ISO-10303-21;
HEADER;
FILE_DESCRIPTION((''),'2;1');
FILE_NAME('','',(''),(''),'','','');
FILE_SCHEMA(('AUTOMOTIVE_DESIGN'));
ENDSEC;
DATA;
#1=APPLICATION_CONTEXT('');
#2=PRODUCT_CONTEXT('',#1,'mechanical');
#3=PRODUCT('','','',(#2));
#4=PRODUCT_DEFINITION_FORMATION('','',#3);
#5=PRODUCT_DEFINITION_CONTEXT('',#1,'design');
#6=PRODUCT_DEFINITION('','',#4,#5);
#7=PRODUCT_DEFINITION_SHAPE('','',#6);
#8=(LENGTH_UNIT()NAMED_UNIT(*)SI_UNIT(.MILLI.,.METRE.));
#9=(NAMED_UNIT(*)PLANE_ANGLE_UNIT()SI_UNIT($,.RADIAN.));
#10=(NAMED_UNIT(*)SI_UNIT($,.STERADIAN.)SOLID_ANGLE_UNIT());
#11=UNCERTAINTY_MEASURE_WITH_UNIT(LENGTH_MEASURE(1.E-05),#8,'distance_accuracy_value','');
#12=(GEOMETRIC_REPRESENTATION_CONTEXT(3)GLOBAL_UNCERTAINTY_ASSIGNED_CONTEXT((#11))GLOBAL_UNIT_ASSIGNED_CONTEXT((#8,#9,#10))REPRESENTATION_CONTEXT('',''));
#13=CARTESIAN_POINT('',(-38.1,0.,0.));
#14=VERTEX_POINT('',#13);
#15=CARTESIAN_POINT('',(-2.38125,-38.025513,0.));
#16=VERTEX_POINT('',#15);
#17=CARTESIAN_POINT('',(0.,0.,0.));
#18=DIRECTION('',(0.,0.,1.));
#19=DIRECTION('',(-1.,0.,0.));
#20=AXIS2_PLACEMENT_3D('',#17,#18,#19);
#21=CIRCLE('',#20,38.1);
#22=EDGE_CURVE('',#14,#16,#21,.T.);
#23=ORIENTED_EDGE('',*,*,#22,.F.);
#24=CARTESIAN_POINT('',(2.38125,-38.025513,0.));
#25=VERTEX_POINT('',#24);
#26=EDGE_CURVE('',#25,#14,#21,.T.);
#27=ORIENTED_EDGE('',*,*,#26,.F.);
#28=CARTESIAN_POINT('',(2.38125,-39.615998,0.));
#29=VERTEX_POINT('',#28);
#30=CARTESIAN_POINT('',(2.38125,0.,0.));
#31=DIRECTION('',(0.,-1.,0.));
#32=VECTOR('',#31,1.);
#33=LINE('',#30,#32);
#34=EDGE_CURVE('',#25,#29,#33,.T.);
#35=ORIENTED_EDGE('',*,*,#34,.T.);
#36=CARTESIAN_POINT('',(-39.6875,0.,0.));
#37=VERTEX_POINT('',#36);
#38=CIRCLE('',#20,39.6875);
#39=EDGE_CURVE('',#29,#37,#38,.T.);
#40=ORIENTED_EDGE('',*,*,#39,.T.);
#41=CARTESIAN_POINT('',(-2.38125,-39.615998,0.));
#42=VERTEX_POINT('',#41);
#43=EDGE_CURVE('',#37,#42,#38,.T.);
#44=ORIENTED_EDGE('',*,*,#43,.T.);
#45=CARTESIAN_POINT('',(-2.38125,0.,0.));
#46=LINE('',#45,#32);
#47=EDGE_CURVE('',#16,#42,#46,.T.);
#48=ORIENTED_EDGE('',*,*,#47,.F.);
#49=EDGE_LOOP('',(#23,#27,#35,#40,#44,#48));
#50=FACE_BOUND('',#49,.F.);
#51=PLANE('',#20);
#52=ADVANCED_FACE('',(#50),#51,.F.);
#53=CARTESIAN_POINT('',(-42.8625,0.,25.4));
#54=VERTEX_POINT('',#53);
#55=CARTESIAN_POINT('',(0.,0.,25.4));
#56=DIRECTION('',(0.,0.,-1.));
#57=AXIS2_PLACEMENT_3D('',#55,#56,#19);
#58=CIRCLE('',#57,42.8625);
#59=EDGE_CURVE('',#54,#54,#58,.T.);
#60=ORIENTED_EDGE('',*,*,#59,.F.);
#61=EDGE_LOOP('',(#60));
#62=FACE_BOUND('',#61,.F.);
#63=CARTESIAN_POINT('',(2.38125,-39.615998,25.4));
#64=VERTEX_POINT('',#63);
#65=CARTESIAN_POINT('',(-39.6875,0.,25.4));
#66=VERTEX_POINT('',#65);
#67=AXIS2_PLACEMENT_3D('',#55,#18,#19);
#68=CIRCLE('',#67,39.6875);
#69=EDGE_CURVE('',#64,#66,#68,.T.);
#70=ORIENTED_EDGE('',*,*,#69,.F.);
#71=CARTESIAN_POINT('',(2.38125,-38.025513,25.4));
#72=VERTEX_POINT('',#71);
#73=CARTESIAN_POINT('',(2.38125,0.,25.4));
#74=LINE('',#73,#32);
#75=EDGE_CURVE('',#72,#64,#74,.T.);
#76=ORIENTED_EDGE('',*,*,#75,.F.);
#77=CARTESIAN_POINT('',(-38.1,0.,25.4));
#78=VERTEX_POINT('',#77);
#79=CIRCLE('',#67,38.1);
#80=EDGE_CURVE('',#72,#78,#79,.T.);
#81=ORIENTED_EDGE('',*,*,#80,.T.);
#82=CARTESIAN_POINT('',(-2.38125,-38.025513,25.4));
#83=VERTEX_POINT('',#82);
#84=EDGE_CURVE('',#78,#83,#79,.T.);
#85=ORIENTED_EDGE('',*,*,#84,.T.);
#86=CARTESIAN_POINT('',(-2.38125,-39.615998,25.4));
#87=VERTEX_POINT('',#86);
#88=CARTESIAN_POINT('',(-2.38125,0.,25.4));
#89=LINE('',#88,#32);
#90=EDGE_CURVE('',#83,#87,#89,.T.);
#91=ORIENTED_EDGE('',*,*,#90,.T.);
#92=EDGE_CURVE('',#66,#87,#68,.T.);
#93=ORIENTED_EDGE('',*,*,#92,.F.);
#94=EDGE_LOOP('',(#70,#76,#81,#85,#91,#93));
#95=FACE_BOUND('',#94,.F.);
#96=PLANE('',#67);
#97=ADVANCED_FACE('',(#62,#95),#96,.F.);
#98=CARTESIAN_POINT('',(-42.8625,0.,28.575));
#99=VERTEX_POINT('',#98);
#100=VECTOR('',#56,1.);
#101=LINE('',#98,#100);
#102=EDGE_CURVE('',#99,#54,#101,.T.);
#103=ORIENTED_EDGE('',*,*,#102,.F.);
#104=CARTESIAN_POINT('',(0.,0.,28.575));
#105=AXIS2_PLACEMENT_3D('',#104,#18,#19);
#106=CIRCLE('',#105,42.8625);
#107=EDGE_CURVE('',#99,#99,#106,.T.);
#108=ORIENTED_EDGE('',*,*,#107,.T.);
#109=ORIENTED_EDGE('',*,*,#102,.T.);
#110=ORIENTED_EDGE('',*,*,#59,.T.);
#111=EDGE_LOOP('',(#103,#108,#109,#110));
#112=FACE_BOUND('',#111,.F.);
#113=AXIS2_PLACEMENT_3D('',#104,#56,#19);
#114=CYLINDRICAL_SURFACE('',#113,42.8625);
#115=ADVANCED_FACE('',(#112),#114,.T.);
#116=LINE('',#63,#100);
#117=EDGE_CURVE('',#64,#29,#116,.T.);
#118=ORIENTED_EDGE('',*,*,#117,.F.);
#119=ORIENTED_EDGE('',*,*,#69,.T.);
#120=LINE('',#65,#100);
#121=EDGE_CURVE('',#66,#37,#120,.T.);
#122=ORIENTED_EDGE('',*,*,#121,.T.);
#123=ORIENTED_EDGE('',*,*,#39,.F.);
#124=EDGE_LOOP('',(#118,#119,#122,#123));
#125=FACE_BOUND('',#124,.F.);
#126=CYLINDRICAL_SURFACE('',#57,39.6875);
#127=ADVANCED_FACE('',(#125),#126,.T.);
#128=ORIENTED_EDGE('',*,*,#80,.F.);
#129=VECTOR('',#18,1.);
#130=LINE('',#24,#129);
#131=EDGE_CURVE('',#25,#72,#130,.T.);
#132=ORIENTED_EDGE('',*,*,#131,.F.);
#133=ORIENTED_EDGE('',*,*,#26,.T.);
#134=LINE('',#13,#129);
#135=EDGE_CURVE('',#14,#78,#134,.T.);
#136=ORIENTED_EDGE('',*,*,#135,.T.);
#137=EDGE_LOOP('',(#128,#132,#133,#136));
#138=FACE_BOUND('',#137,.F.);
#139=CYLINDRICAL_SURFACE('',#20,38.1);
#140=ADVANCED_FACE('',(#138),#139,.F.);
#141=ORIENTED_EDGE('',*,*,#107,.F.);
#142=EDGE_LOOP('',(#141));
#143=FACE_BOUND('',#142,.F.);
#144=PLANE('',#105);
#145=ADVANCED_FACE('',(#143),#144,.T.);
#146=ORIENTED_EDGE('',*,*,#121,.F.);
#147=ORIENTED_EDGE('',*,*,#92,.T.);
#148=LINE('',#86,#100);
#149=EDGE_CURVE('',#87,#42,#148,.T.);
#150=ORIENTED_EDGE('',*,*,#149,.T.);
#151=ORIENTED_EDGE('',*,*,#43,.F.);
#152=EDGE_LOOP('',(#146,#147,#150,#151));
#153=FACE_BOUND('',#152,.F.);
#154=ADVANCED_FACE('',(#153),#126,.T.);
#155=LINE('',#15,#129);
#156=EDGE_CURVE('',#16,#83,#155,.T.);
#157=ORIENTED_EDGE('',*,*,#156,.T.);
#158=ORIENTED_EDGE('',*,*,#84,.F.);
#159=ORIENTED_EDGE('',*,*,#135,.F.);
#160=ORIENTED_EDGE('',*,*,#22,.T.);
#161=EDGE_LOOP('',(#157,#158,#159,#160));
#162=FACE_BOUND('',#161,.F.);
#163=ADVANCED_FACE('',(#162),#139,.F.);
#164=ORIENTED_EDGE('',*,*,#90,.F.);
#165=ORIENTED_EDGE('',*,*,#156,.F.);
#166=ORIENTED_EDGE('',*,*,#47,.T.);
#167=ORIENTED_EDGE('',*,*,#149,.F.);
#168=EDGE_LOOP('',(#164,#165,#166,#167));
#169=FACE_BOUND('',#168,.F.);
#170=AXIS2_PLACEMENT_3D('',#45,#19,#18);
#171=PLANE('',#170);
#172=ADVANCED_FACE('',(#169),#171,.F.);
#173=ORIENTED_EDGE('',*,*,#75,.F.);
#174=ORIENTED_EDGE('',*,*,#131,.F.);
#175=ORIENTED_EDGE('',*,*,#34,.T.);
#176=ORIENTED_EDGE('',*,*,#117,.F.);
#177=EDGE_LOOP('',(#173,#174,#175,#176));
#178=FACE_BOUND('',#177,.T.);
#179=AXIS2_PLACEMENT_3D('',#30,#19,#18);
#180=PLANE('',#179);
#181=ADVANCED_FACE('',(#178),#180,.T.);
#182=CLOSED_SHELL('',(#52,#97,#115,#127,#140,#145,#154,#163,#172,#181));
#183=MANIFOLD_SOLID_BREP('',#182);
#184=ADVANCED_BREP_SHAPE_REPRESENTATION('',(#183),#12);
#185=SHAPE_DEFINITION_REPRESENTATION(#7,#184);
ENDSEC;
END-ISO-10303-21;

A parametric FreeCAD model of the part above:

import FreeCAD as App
import Part
import Sketcher
from FreeCAD import Vector
Q = App.Units.Quantity


def add_polygon(sketch, points):
    """Adds a closed chain of lines whose ends are joined by coincident constraints."""
    first, n = sketch.GeometryCount, len(points)
    for a, b in zip(points, points[1:] + points[:1]):
        sketch.addGeometry(Part.LineSegment(App.Vector(*a, 0), App.Vector(*b, 0)), False)
    for i in range(n):
        sketch.addConstraint(Sketcher.Constraint("Coincident", first + i, 2, first + (i + 1) % n, 1))

doc = App.newDocument("Part")
params = doc.addObject("Spreadsheet::Sheet", "Params")
for row, (alias, value) in enumerate([
    ("sketch1_height", "1 in"),
    ("sketch1_width", "1.5 in"),
    ("sketch1_width2", "0.0625 in"),
    ("sketch1_width3", "1.6875 in"),
    ("revolution_angle", "360 deg"),
    ("sketch2_height", "1 in"),
    ("sketch2_width", "0.1875 in"),
], start=1):
    params.set(f"A{row}", alias)
    params.set(f"B{row}", "=" + value)
    params.setAlias(f"B{row}", alias)

body = doc.addObject("PartDesign::Body", "Body")

# Sketch on XZ plane
sketch1 = doc.addObject("Sketcher::SketchObject", "Sketch")
body.addObject(sketch1)
sketch1.AttachmentSupport = (doc.XZ_Plane, [""])
sketch1.MapMode = "FlatFace"
add_polygon(sketch1, [(-39.7, 0), (-38.1, 0), (-38.1, 25.4), (0, 25.4), (0, 28.6), (-42.9, 28.6), (-42.9, 25.4), (-39.7, 25.4)])  # lines 0-7
sketch1.addConstraint(Sketcher.Constraint("Horizontal", 0))
sketch1.addConstraint(Sketcher.Constraint("Vertical", 1))
sketch1.addConstraint(Sketcher.Constraint("Horizontal", 2))
sketch1.addConstraint(Sketcher.Constraint("Vertical", 3))
sketch1.addConstraint(Sketcher.Constraint("Horizontal", 4))
sketch1.addConstraint(Sketcher.Constraint("Vertical", 5))
sketch1.addConstraint(Sketcher.Constraint("Horizontal", 6))
sketch1.addConstraint(Sketcher.Constraint("Vertical", 7))
sketch1.addConstraint(Sketcher.Constraint("PointOnObject", 0, 2, -1))
sketch1.addConstraint(Sketcher.Constraint("PointOnObject", 2, 2, -2))
sketch1.addConstraint(Sketcher.Constraint("Horizontal", 2, 2, 5, 2))
sketch1.addConstraint(Sketcher.Constraint("Equal", 6, 3))
sketch1.addConstraint(Sketcher.Constraint("DistanceY", 1, 1, 1, 2, Q("1 in")))
sketch1.addConstraint(Sketcher.Constraint("DistanceX", 2, 1, 2, 2, Q("1.5 in")))
sketch1.addConstraint(Sketcher.Constraint("DistanceX", 0, 1, 0, 2, Q("0.0625 in")))
sketch1.addConstraint(Sketcher.Constraint("DistanceX", 4, 2, 4, 1, Q("1.6875 in")))
sketch1.setExpression("Constraints[20]", "Params.sketch1_height")
sketch1.setExpression("Constraints[21]", "Params.sketch1_width")
sketch1.setExpression("Constraints[22]", "Params.sketch1_width2")
sketch1.setExpression("Constraints[23]", "Params.sketch1_width3")
revolution = doc.addObject("PartDesign::Revolution", "Revolution")
body.addObject(revolution)
revolution.Profile = sketch1
revolution.ReferenceAxis = (sketch1, ["V_Axis"])
revolution.setExpression("Angle", "Params.revolution_angle")

# Sketch on XZ plane
sketch2 = doc.addObject("Sketcher::SketchObject", "Sketch001")
body.addObject(sketch2)
sketch2.AttachmentSupport = (doc.XZ_Plane, [""])
sketch2.MapMode = "FlatFace"
add_polygon(sketch2, [(-2.4, 25.4), (-2.4, 0), (2.4, 0), (2.4, 25.4)])  # lines 0-3
sketch2.addConstraint(Sketcher.Constraint("Vertical", 0))
sketch2.addConstraint(Sketcher.Constraint("Horizontal", 1))
sketch2.addConstraint(Sketcher.Constraint("Vertical", 2))
sketch2.addConstraint(Sketcher.Constraint("Horizontal", 3))
sketch2.addConstraint(Sketcher.Constraint("Symmetric", 0, 2, 1, 2, -1, 1))
sketch2.addConstraint(Sketcher.Constraint("DistanceY", 0, 2, 0, 1, Q("1 in")))
sketch2.addConstraint(Sketcher.Constraint("DistanceX", 1, 1, 1, 2, Q("0.1875 in")))
sketch2.setExpression("Constraints[9]", "Params.sketch2_height")
sketch2.setExpression("Constraints[10]", "Params.sketch2_width")
pocket1 = doc.addObject("PartDesign::Pocket", "Pocket")
body.addObject(pocket1)
pocket1.Profile = sketch2
pocket1.Type = "ThroughAll"
pocket1.Reversed = True

doc.recompute()
